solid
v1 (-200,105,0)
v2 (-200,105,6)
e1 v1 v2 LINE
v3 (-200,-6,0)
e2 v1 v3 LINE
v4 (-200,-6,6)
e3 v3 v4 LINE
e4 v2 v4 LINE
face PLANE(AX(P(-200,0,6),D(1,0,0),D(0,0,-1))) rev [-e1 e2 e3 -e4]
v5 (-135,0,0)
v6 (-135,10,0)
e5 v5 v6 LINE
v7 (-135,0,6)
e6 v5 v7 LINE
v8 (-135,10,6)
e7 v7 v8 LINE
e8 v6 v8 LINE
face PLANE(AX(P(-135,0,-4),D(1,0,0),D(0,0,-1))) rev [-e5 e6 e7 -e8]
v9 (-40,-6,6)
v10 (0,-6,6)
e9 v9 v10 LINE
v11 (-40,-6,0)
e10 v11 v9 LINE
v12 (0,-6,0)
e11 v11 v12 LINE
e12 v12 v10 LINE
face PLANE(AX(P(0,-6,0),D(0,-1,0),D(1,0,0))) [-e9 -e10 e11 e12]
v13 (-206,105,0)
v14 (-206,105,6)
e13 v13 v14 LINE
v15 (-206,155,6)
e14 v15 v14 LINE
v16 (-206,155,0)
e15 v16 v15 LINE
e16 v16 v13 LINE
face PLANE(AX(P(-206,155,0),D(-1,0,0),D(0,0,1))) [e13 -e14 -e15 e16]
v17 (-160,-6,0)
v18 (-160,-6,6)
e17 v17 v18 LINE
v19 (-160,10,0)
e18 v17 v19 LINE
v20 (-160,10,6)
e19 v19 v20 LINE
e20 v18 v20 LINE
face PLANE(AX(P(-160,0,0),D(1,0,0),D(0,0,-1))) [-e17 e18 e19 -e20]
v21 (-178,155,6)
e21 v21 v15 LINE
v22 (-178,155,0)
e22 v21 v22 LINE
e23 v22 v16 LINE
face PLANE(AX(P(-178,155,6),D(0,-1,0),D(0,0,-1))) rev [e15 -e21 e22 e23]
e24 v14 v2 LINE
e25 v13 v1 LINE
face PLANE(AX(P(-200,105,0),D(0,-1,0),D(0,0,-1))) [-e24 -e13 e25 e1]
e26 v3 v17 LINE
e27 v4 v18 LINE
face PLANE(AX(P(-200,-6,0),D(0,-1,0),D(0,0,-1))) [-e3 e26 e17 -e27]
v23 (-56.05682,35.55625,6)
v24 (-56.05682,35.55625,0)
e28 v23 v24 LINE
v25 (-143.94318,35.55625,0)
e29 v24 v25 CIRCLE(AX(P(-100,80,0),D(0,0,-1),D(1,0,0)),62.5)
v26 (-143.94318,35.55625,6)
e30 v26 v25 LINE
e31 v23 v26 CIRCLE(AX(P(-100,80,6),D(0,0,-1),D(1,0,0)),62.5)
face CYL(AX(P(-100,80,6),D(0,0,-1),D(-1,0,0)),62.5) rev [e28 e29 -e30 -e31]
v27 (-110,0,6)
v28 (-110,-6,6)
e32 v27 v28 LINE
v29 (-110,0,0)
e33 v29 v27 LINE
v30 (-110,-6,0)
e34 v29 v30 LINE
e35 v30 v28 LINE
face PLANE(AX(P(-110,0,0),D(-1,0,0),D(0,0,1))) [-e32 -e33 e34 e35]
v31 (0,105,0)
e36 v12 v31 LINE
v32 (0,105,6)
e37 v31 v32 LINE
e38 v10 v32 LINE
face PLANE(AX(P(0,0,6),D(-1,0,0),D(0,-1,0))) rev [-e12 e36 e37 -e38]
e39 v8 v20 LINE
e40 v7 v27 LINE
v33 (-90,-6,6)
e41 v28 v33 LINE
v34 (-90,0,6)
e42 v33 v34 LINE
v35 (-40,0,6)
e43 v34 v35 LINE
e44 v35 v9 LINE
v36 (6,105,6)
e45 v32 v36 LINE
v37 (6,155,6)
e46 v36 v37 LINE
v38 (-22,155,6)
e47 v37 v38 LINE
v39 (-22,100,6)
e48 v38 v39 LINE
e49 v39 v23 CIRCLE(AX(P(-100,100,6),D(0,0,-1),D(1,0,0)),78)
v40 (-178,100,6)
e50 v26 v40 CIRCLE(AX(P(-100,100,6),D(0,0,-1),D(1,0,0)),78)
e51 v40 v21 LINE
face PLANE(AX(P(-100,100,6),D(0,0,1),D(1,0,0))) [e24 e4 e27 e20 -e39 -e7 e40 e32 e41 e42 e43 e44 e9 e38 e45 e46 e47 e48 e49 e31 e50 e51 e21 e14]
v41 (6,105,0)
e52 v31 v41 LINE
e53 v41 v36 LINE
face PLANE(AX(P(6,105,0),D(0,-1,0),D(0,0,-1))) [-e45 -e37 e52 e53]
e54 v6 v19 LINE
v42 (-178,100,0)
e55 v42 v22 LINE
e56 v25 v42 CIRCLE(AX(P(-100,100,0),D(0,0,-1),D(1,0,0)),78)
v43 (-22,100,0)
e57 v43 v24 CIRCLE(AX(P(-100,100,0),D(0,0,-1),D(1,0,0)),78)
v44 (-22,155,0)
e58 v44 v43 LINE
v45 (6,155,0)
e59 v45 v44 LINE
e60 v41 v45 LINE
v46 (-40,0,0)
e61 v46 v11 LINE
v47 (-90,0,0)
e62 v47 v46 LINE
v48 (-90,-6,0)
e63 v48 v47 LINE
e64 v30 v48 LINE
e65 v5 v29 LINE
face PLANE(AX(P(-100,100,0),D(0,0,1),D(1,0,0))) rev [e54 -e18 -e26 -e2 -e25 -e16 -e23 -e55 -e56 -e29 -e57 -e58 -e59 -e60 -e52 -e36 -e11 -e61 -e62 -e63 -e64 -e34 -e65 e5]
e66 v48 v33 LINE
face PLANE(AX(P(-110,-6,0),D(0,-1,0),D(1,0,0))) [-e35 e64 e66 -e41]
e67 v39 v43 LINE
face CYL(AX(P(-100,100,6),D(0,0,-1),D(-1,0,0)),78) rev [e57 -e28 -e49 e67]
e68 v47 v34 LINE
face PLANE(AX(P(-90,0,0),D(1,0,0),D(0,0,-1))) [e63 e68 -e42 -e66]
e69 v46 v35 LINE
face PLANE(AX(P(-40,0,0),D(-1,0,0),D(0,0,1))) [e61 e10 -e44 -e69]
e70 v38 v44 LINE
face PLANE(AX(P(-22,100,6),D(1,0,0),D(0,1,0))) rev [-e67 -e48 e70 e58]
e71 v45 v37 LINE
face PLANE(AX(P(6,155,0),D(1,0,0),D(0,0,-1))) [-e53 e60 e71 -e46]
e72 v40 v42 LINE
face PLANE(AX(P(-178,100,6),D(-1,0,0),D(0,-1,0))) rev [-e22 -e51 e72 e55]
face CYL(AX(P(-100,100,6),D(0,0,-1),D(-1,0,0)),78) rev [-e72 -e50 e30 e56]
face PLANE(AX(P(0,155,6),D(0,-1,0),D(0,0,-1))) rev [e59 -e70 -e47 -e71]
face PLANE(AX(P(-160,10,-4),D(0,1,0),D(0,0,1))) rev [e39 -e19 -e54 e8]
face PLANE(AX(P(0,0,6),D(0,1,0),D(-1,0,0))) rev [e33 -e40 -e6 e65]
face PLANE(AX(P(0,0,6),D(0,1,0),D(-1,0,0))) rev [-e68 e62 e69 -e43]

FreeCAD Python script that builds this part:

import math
import FreeCAD as App
import Part
import Sketcher

V = App.Vector
Q = App.Units.Quantity

doc = App.newDocument("Part")
params = doc.addObject("Spreadsheet::Sheet", "Params")
for row, (alias, value) in enumerate([
    ("sketch1_radius", "78 mm"),
    ("sketch1_radius2", "62.5 mm"),
    ("sketch1_width", "22 mm"),
    ("sketch1_height", "55 mm"),
    ("sketch1_height2", "155 mm"),
    ("pad1_length", "6 mm"),
    ("sketch2_width", "6 mm"),
    ("sketch2_height", "50 mm"),
    ("pad2_length", "6 mm"),
    ("linearpattern_pitch", "206 mm"),
    ("sketch3_width", "40 mm"),
    ("sketch3_width2", "20 mm"),
    ("sketch3_height", "6 mm"),
    ("pad3_length", "6 mm"),
    ("sketch4_width", "25 mm"),
    ("sketch4_height", "10 mm"),
    ("pocket1_length", "10 mm"),
], start=1):
    params.set(f"A{row}", alias)
    params.set(f"B{row}", "=" + value)
    params.setAlias(f"B{row}", alias)

body = doc.addObject("PartDesign::Body", "Body")

sketch1 = body.newObject("Sketcher::SketchObject", "Sketch")
sketch1.AttachmentSupport = (doc.getObject("XY_Plane"), [""])
sketch1.MapMode = "FlatFace"
sketch1.addGeometry(Part.LineSegment(V(-178, 100, 0), V(-178, 155, 0)), False)
sketch1.addGeometry(Part.LineSegment(V(-178, 155, 0), V(-200, 155, 0)), False)
sketch1.addGeometry(Part.LineSegment(V(-200, 155, 0), V(-200, 0, 0)), False)
sketch1.addGeometry(Part.LineSegment(V(-200, 0, 0), V(0, 0, 0)), False)
sketch1.addGeometry(Part.LineSegment(V(0, 0, 0), V(0, 155, 0)), False)
sketch1.addGeometry(Part.LineSegment(V(0, 155, 0), V(-22, 155, 0)), False)
sketch1.addGeometry(Part.LineSegment(V(-22, 155, 0), V(-22, 100, 0)), False)
sketch1.addGeometry(Part.ArcOfCircle(Part.Circle(V(-100, 100, 0), V(0, 0, 1), 78), math.radians(-56), math.radians(0)), False)
sketch1.addGeometry(Part.ArcOfCircle(Part.Circle(V(-100, 80, 0), V(0, 0, 1), 62), math.radians(-135), math.radians(-45)), False)
sketch1.addGeometry(Part.ArcOfCircle(Part.Circle(V(-100, 100, 0), V(0, 0, 1), 78), math.radians(180), math.radians(236)), False)
sketch1.addConstraint(Sketcher.Constraint("Coincident", 0, 2, 1, 1))
sketch1.addConstraint(Sketcher.Constraint("Coincident", 1, 2, 2, 1))
sketch1.addConstraint(Sketcher.Constraint("Coincident", 2, 2, 3, 1))
sketch1.addConstraint(Sketcher.Constraint("Coincident", 3, 2, 4, 1))
sketch1.addConstraint(Sketcher.Constraint("Coincident", 4, 2, 5, 1))
sketch1.addConstraint(Sketcher.Constraint("Coincident", 5, 2, 6, 1))
sketch1.addConstraint(Sketcher.Constraint("Tangent", 6, 2, 7, 2))
sketch1.addConstraint(Sketcher.Constraint("Coincident", 7, 1, 8, 2))
sketch1.addConstraint(Sketcher.Constraint("Coincident", 8, 1, 9, 2))
sketch1.addConstraint(Sketcher.Constraint("Tangent", 9, 1, 0, 1))
sketch1.addConstraint(Sketcher.Constraint("Vertical", 0))
sketch1.addConstraint(Sketcher.Constraint("Horizontal", 1))
sketch1.addConstraint(Sketcher.Constraint("Vertical", 2))
sketch1.addConstraint(Sketcher.Constraint("Horizontal", 3))
sketch1.addConstraint(Sketcher.Constraint("Vertical", 4))
sketch1.addConstraint(Sketcher.Constraint("Horizontal", 5))
sketch1.addConstraint(Sketcher.Constraint("Vertical", 6))
sketch1.addConstraint(Sketcher.Constraint("Coincident", 3, 2, -1, 1))
sketch1.addConstraint(Sketcher.Constraint("Coincident", 9, 3, 7, 3))
sketch1.addConstraint(Sketcher.Constraint("Equal", 7, 9))
sketch1.addConstraint(Sketcher.Constraint("Horizontal", 1, 2, 4, 2))
sketch1.addConstraint(Sketcher.Constraint("Horizontal", 7, 1, 8, 1))
sketch1.addConstraint(Sketcher.Constraint("Equal", 1, 5))
sketch1.addConstraint(Sketcher.Constraint("Radius", 7, Q("78 mm")))
sketch1.addConstraint(Sketcher.Constraint("Radius", 8, Q("62.5 mm")))
sketch1.addConstraint(Sketcher.Constraint("DistanceX", 1, 2, 1, 1, Q("22 mm")))
sketch1.addConstraint(Sketcher.Constraint("DistanceY", 0, 1, 0, 2, Q("55 mm")))
sketch1.addConstraint(Sketcher.Constraint("DistanceY", 2, 2, 2, 1, Q("155 mm")))
sketch1.addConstraint(Sketcher.Constraint("DistanceY", -1, 1, 8, 3, Q("80 mm")))
sketch1.setExpression("Constraints[23]", "Params.sketch1_radius")
sketch1.setExpression("Constraints[24]", "Params.sketch1_radius2")
sketch1.setExpression("Constraints[25]", "Params.sketch1_width")
sketch1.setExpression("Constraints[26]", "Params.sketch1_height")
sketch1.setExpression("Constraints[27]", "Params.sketch1_height2")
pad1 = body.newObject("PartDesign::Pad", "Pad")
pad1.Profile = sketch1
pad1.setExpression("Length", "Params.pad1_length")

sketch2 = body.newObject("Sketcher::SketchObject", "Sketch001")
sketch2.AttachmentSupport = (doc.getObject("XY_Plane"), [""])
sketch2.MapMode = "FlatFace"
sketch2.AttachmentOffset = App.Placement(V(0, 0, 6), App.Rotation())
sketch2.addGeometry(Part.LineSegment(V(-206, 155, 0), V(-206, 105, 0)), False)
sketch2.addGeometry(Part.LineSegment(V(-206, 105, 0), V(-200, 105, 0)), False)
sketch2.addGeometry(Part.LineSegment(V(-200, 105, 0), V(-200, 155, 0)), False)
sketch2.addGeometry(Part.LineSegment(V(-200, 155, 0), V(-206, 155, 0)), False)
sketch2.addConstraint(Sketcher.Constraint("Coincident", 0, 2, 1, 1))
sketch2.addConstraint(Sketcher.Constraint("Coincident", 1, 2, 2, 1))
sketch2.addConstraint(Sketcher.Constraint("Coincident", 2, 2, 3, 1))
sketch2.addConstraint(Sketcher.Constraint("Coincident", 3, 2, 0, 1))
sketch2.addConstraint(Sketcher.Constraint("Vertical", 0))
sketch2.addConstraint(Sketcher.Constraint("Horizontal", 1))
sketch2.addConstraint(Sketcher.Constraint("Vertical", 2))
sketch2.addConstraint(Sketcher.Constraint("Horizontal", 3))
sketch2.addConstraint(Sketcher.Constraint("DistanceX", 1, 1, 1, 2, Q("6 mm")))
sketch2.addConstraint(Sketcher.Constraint("DistanceY", 0, 2, 0, 1, Q("50 mm")))
sketch2.addConstraint(Sketcher.Constraint("DistanceX", 0, 2, -1, 1, Q("206 mm")))
sketch2.addConstraint(Sketcher.Constraint("DistanceY", -1, 1, 0, 2, Q("105 mm")))
sketch2.setExpression("Constraints[8]", "Params.sketch2_width")
sketch2.setExpression("Constraints[9]", "Params.sketch2_height")
pad2 = body.newObject("PartDesign::Pad", "Pad001")
pad2.Profile = sketch2
pad2.setExpression("Length", "Params.pad2_length")
pad2.Reversed = True
doc.recompute()

linearpattern = body.newObject("PartDesign::LinearPattern", "LinearPattern")
linearpattern.Originals = [pad2]
linearpattern.Direction = (doc.getObject("X_Axis"), [""])
linearpattern.Mode = "offset"
linearpattern.setExpression("Offset", "Params.linearpattern_pitch")
linearpattern.Occurrences = 2
body.Tip = linearpattern

sketch3 = body.newObject("Sketcher::SketchObject", "Sketch002")
sketch3.AttachmentSupport = (doc.getObject("XY_Plane"), [""])
sketch3.MapMode = "FlatFace"
sketch3.AttachmentOffset = App.Placement(V(0, 0, 6), App.Rotation())
sketch3.addGeometry(Part.LineSegment(V(-200, 0, 0), V(-200, -6, 0)), False)
sketch3.addGeometry(Part.LineSegment(V(-200, -6, 0), V(-160, -6, 0)), False)
sketch3.addGeometry(Part.LineSegment(V(-160, -6, 0), V(-160, 0, 0)), False)
sketch3.addGeometry(Part.LineSegment(V(-160, 0, 0), V(-200, 0, 0)), False)
sketch3.addGeometry(Part.LineSegment(V(-110, 0, 0), V(-110, -6, 0)), False)
sketch3.addGeometry(Part.LineSegment(V(-110, -6, 0), V(-90, -6, 0)), False)
sketch3.addGeometry(Part.LineSegment(V(-90, -6, 0), V(-90, 0, 0)), False)
sketch3.addGeometry(Part.LineSegment(V(-90, 0, 0), V(-110, 0, 0)), False)
sketch3.addGeometry(Part.LineSegment(V(-40, 0, 0), V(-40, -6, 0)), False)
sketch3.addGeometry(Part.LineSegment(V(-40, -6, 0), V(0, -6, 0)), False)
sketch3.addGeometry(Part.LineSegment(V(0, -6, 0), V(0, 0, 0)), False)
sketch3.addGeometry(Part.LineSegment(V(0, 0, 0), V(-40, 0, 0)), False)
sketch3.addConstraint(Sketcher.Constraint("Coincident", 0, 2, 1, 1))
sketch3.addConstraint(Sketcher.Constraint("Coincident", 1, 2, 2, 1))
sketch3.addConstraint(Sketcher.Constraint("Coincident", 2, 2, 3, 1))
sketch3.addConstraint(Sketcher.Constraint("Coincident", 3, 2, 0, 1))
sketch3.addConstraint(Sketcher.Constraint("Coincident", 4, 2, 5, 1))
sketch3.addConstraint(Sketcher.Constraint("Coincident", 5, 2, 6, 1))
sketch3.addConstraint(Sketcher.Constraint("Coincident", 6, 2, 7, 1))
sketch3.addConstraint(Sketcher.Constraint("Coincident", 7, 2, 4, 1))
sketch3.addConstraint(Sketcher.Constraint("Coincident", 8, 2, 9, 1))
sketch3.addConstraint(Sketcher.Constraint("Coincident", 9, 2, 10, 1))
sketch3.addConstraint(Sketcher.Constraint("Coincident", 10, 2, 11, 1))
sketch3.addConstraint(Sketcher.Constraint("Coincident", 11, 2, 8, 1))
sketch3.addConstraint(Sketcher.Constraint("Vertical", 0))
sketch3.addConstraint(Sketcher.Constraint("Horizontal", 1))
sketch3.addConstraint(Sketcher.Constraint("Vertical", 2))
sketch3.addConstraint(Sketcher.Constraint("Horizontal", 3))
sketch3.addConstraint(Sketcher.Constraint("Vertical", 4))
sketch3.addConstraint(Sketcher.Constraint("Horizontal", 5))
sketch3.addConstraint(Sketcher.Constraint("Vertical", 6))
sketch3.addConstraint(Sketcher.Constraint("Horizontal", 7))
sketch3.addConstraint(Sketcher.Constraint("Vertical", 8))
sketch3.addConstraint(Sketcher.Constraint("Horizontal", 9))
sketch3.addConstraint(Sketcher.Constraint("Vertical", 10))
sketch3.addConstraint(Sketcher.Constraint("Horizontal", 11))
sketch3.addConstraint(Sketcher.Constraint("Coincident", 10, 2, -1, 1))
sketch3.addConstraint(Sketcher.Constraint("PointOnObject", 2, 2, -1))
sketch3.addConstraint(Sketcher.Constraint("PointOnObject", 6, 2, -1))
sketch3.addConstraint(Sketcher.Constraint("Horizontal", 1, 2, 4, 2))
sketch3.addConstraint(Sketcher.Constraint("Horizontal", 5, 2, 8, 2))
sketch3.addConstraint(Sketcher.Constraint("Equal", 3, 9))
sketch3.addConstraint(Sketcher.Constraint("DistanceX", 1, 1, 1, 2, Q("40 mm")))
sketch3.addConstraint(Sketcher.Constraint("DistanceX", 5, 1, 5, 2, Q("20 mm")))
sketch3.addConstraint(Sketcher.Constraint("DistanceY", 0, 2, 0, 1, Q("6 mm")))
sketch3.addConstraint(Sketcher.Constraint("DistanceX", 0, 2, -1, 1, Q("200 mm")))
sketch3.addConstraint(Sketcher.Constraint("DistanceX", 4, 2, -1, 1, Q("110 mm")))
sketch3.setExpression("Constraints[30]", "Params.sketch3_width")
sketch3.setExpression("Constraints[31]", "Params.sketch3_width2")
sketch3.setExpression("Constraints[32]", "Params.sketch3_height")
pad3 = body.newObject("PartDesign::Pad", "Pad002")
pad3.Profile = sketch3
pad3.setExpression("Length", "Params.pad3_length")
pad3.Reversed = True

sketch4 = body.newObject("Sketcher::SketchObject", "Sketch003")
sketch4.AttachmentSupport = (doc.getObject("XY_Plane"), [""])
sketch4.MapMode = "FlatFace"
sketch4.AttachmentOffset = App.Placement(V(0, 0, 6), App.Rotation())
sketch4.addGeometry(Part.LineSegment(V(-160, 10, 0), V(-160, 0, 0)), False)
sketch4.addGeometry(Part.LineSegment(V(-160, 0, 0), V(-135, 0, 0)), False)
sketch4.addGeometry(Part.LineSegment(V(-135, 0, 0), V(-135, 10, 0)), False)
sketch4.addGeometry(Part.LineSegment(V(-135, 10, 0), V(-160, 10, 0)), False)
sketch4.addConstraint(Sketcher.Constraint("Coincident", 0, 2, 1, 1))
sketch4.addConstraint(Sketcher.Constraint("Coincident", 1, 2, 2, 1))
sketch4.addConstraint(Sketcher.Constraint("Coincident", 2, 2, 3, 1))
sketch4.addConstraint(Sketcher.Constraint("Coincident", 3, 2, 0, 1))
sketch4.addConstraint(Sketcher.Constraint("Vertical", 0))
sketch4.addConstraint(Sketcher.Constraint("Horizontal", 1))
sketch4.addConstraint(Sketcher.Constraint("Vertical", 2))
sketch4.addConstraint(Sketcher.Constraint("Horizontal", 3))
sketch4.addConstraint(Sketcher.Constraint("PointOnObject", 0, 2, -1))
sketch4.addConstraint(Sketcher.Constraint("DistanceX", 1, 1, 1, 2, Q("25 mm")))
sketch4.addConstraint(Sketcher.Constraint("DistanceY", 0, 2, 0, 1, Q("10 mm")))
sketch4.addConstraint(Sketcher.Constraint("DistanceX", 0, 2, -1, 1, Q("160 mm")))
sketch4.setExpression("Constraints[9]", "Params.sketch4_width")
sketch4.setExpression("Constraints[10]", "Params.sketch4_height")
pocket1 = body.newObject("PartDesign::Pocket", "Pocket")
pocket1.Profile = sketch4
pocket1.setExpression("Length", "Params.pocket1_length")

doc.recompute()
